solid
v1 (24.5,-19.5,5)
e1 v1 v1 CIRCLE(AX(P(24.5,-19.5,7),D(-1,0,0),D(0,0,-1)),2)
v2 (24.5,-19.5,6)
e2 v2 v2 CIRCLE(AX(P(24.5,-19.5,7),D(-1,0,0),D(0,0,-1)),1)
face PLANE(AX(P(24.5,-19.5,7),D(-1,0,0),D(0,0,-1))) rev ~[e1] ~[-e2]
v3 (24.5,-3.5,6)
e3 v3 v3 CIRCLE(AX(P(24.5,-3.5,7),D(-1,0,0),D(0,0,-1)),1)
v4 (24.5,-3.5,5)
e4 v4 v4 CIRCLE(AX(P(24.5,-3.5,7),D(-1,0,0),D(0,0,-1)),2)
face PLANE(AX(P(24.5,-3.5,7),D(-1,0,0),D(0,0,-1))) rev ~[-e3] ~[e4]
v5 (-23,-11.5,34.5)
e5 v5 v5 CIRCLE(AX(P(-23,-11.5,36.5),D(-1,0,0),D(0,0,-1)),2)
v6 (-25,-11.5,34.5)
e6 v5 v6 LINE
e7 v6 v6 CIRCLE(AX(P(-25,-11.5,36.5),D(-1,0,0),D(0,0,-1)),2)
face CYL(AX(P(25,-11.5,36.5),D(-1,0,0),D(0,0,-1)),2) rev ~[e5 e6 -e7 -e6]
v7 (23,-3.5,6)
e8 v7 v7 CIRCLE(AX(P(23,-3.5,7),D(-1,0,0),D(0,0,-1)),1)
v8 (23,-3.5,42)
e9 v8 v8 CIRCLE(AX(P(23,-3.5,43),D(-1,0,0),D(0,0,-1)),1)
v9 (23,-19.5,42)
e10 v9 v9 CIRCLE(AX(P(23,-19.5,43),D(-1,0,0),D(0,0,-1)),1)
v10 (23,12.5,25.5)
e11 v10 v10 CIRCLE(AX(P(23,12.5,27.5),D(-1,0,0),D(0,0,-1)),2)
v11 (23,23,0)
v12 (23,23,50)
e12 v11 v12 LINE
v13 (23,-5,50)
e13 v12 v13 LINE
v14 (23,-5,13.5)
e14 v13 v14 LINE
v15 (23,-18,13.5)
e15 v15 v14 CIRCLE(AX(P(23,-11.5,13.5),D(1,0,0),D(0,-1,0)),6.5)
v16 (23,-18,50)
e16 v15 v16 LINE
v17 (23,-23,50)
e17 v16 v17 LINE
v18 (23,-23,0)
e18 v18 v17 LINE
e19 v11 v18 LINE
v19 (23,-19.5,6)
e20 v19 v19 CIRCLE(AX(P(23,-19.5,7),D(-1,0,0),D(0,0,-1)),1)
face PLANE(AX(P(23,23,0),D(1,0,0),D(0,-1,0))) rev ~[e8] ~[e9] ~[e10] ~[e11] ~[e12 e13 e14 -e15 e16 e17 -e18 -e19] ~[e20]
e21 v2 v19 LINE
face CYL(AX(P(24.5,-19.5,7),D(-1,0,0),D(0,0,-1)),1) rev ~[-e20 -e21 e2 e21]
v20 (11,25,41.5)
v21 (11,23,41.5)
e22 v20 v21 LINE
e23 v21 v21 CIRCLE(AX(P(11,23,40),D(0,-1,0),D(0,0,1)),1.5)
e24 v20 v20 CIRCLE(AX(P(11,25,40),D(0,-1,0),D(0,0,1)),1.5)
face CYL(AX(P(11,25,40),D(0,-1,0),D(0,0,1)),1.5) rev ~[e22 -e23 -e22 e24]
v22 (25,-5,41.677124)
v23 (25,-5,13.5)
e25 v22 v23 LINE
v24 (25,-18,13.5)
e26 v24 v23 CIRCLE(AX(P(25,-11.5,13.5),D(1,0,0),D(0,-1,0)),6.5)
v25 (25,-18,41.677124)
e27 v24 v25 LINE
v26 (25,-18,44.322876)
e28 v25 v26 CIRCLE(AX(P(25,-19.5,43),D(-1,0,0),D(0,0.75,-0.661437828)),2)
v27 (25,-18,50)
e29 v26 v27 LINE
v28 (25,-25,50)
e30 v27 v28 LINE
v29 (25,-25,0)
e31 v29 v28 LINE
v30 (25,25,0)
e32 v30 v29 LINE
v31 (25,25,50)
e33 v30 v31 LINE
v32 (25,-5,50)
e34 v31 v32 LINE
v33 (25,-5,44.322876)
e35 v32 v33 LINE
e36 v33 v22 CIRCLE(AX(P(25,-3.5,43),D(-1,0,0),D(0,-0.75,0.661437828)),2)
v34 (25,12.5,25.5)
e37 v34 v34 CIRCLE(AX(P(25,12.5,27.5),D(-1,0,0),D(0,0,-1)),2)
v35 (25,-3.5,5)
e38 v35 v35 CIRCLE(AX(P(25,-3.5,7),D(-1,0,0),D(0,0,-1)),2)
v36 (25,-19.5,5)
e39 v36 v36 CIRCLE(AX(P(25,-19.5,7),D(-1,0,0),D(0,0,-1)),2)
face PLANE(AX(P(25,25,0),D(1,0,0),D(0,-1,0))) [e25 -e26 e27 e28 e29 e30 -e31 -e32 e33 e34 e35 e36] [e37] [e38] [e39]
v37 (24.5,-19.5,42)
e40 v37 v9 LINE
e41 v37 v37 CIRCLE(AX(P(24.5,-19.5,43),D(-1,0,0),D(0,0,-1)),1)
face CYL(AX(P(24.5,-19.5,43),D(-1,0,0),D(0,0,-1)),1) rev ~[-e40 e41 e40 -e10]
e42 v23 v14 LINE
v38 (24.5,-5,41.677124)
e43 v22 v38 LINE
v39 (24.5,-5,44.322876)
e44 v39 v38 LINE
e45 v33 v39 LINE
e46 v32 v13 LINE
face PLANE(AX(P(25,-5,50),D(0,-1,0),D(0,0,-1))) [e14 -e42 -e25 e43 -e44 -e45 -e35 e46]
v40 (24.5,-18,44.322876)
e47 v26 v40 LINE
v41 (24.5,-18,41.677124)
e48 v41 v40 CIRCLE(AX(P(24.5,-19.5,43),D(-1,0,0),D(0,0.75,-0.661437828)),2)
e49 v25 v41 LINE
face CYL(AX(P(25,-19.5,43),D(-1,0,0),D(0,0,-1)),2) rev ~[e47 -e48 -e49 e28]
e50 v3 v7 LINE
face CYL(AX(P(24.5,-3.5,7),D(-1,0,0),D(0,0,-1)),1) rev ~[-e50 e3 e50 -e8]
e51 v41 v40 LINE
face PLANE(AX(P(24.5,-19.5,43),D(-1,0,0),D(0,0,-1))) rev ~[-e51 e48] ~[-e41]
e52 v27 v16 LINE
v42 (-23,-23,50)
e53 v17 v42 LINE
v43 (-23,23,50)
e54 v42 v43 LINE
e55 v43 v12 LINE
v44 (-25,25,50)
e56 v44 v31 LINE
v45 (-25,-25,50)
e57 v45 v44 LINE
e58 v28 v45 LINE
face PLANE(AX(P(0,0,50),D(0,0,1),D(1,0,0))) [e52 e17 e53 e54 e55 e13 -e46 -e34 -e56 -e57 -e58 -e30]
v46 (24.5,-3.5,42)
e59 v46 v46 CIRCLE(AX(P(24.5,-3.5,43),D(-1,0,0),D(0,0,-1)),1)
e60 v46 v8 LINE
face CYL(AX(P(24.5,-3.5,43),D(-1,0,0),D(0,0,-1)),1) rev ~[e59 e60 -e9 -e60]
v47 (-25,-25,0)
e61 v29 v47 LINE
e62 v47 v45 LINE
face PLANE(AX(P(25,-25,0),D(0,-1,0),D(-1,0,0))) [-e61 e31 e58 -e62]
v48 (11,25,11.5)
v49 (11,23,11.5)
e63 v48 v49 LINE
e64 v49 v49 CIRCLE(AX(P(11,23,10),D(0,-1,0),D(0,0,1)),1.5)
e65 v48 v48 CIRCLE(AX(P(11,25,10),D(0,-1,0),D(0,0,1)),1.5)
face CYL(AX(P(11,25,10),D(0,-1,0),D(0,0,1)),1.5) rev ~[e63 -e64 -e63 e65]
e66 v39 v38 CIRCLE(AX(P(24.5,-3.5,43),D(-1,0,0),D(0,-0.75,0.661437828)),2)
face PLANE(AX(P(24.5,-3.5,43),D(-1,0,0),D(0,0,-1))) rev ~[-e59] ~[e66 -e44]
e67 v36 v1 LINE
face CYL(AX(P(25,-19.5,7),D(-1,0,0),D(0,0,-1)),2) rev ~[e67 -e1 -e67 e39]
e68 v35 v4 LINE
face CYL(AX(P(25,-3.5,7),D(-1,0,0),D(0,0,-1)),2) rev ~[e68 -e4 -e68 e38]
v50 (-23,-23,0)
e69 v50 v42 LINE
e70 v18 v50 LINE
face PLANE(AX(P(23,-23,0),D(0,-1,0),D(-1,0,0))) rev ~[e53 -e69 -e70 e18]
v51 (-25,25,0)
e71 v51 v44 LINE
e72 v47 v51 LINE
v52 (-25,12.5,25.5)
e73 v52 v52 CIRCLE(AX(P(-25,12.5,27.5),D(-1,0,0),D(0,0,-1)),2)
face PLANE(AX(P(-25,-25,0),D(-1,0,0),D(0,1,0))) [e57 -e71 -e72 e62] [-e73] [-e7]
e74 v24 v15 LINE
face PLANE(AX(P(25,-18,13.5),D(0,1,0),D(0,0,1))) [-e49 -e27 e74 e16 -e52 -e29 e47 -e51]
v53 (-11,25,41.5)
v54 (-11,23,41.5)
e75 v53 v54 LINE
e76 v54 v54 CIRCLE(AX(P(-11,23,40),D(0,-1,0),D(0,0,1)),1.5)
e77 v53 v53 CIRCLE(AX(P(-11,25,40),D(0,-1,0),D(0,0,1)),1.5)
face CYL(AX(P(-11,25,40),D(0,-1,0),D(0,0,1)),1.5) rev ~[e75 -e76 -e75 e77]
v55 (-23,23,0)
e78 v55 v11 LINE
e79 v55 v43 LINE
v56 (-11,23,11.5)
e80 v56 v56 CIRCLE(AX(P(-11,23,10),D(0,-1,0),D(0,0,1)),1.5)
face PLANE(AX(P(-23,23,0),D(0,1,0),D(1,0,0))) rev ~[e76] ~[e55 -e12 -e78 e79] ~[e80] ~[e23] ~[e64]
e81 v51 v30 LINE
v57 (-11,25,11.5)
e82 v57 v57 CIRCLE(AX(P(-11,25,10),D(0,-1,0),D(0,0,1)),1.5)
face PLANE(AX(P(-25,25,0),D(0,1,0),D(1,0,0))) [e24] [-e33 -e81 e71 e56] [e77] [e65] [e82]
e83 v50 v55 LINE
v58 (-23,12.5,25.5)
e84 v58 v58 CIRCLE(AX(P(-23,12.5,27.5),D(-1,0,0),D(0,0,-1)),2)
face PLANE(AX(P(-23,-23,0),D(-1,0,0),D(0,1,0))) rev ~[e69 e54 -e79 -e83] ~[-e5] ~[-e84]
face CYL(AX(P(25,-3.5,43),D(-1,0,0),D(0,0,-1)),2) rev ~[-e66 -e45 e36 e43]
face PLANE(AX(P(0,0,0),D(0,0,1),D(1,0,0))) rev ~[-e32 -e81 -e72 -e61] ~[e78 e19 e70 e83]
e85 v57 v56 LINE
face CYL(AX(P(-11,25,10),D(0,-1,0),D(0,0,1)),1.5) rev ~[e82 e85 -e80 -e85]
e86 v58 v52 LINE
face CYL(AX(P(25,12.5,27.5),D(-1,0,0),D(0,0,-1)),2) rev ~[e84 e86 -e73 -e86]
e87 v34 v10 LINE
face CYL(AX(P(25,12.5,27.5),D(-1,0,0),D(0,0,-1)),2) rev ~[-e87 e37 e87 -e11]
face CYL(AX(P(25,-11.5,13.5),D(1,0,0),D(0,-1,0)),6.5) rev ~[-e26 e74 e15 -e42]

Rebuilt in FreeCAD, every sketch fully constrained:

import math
import FreeCAD as App
import Part
import Sketcher
from FreeCAD import Vector
Q = App.Units.Quantity


def add_polygon(sketch, points):
    """Adds a closed chain of lines whose ends are joined by coincident constraints."""
    first, n = sketch.GeometryCount, len(points)
    for a, b in zip(points, points[1:] + points[:1]):
        sketch.addGeometry(Part.LineSegment(App.Vector(*a, 0), App.Vector(*b, 0)), False)
    for i in range(n):
        sketch.addConstraint(Sketcher.Constraint("Coincident", first + i, 2, first + (i + 1) % n, 1))

doc = App.newDocument("Part")
params = doc.addObject("Spreadsheet::Sheet", "Params")
for row, (alias, value) in enumerate([
    ("sketch1_width", "50 mm"),
    ("sketch1_width2", "46 mm"),
    ("pad1_length", "50 mm"),
    ("sketch2_radius", "6.5 mm"),
    ("sketch2_height", "36.5 mm"),
    ("pocket1_length", "30.5 mm"),
    ("sketch3_diameter", "2 mm"),
    ("hole_diameter", "2 mm"),
    ("hole_depth", "2 mm"),
    ("hole_cbore_diameter", "4 mm"),
    ("hole_cbore_depth", "0.5 mm"),
    ("sketch4_diameter", "4 mm"),
    ("hole2_diameter", "4 mm"),
    ("sketch5_diameter", "3 mm"),
    ("hole3_diameter", "3 mm"),
    ("hole3_depth", "2 mm"),
], start=1):
    params.set(f"A{row}", alias)
    params.set(f"B{row}", "=" + value)
    params.setAlias(f"B{row}", alias)

body = doc.addObject("PartDesign::Body", "Body")

# Sketch on XY plane
sketch1 = body.newObject("Sketcher::SketchObject", "Sketch")
sketch1.AttachmentSupport = (doc.getObject("XY_Plane"), [""])
sketch1.MapMode = "FlatFace"
add_polygon(sketch1, [(25, 25), (-25, 25), (-25, -25), (25, -25)])  # lines 0-3
add_polygon(sketch1, [(-23, -23), (-23, 23), (23, 23), (23, -23)])  # lines 4-7
sketch1.addConstraint([
    Sketcher.Constraint("Horizontal", 0),
    Sketcher.Constraint("Vertical", 1),
    Sketcher.Constraint("Horizontal", 2),
    Sketcher.Constraint("Vertical", 3),
    Sketcher.Constraint("Vertical", 4),
    Sketcher.Constraint("Horizontal", 5),
    Sketcher.Constraint("Vertical", 6),
    Sketcher.Constraint("Horizontal", 7),
    Sketcher.Constraint("Symmetric", 0, 2, 2, 2, -1, 1),
    Sketcher.Constraint("Symmetric", 4, 2, 6, 2, -1, 1),
    Sketcher.Constraint("Equal", 2, 1),
    Sketcher.Constraint("Equal", 7, 4),
    Sketcher.Constraint("DistanceX", 0, 2, 0, 1, Q("50 mm")),
    Sketcher.Constraint("DistanceX", 5, 1, 5, 2, Q("46 mm")),
])
sketch1.setExpression("Constraints[20]", "Params.sketch1_width")
sketch1.setExpression("Constraints[21]", "Params.sketch1_width2")
pad1 = body.newObject("PartDesign::Pad", "Pad")
pad1.Profile = sketch1
pad1.setExpression("Length", "Params.pad1_length")

# Sketch on YZ plane
sketch2 = body.newObject("Sketcher::SketchObject", "Sketch001")
sketch2.AttachmentSupport = (doc.getObject("YZ_Plane"), [""])
sketch2.MapMode = "FlatFace"
sketch2.AttachmentOffset = App.Placement(Vector(0, 0, 25), App.Rotation())
sketch2.addGeometry([
    Part.LineSegment(Vector(-5, 14, 0), Vector(-5, 50, 0)),
    Part.LineSegment(Vector(-5, 50, 0), Vector(-18, 50, 0)),
    Part.LineSegment(Vector(-18, 50, 0), Vector(-18, 14, 0)),
    Part.ArcOfCircle(Part.Circle(Vector(-12, 14, 0), Vector(0, 0, 1), 6), math.radians(180), math.radians(360)),
], False)
sketch2.addConstraint([
    Sketcher.Constraint("Coincident", 0, 2, 1, 1),
    Sketcher.Constraint("Coincident", 1, 2, 2, 1),
    Sketcher.Constraint("Tangent", 2, 2, 3, 1),
    Sketcher.Constraint("Tangent", 3, 2, 0, 1),
    Sketcher.Constraint("Vertical", 0),
    Sketcher.Constraint("Horizontal", 1),
    Sketcher.Constraint("Vertical", 2),
    Sketcher.Constraint("Radius", 3, Q("6.5 mm")),
    Sketcher.Constraint("DistanceY", 0, 1, 0, 2, Q("36.5 mm")),
    Sketcher.Constraint("DistanceX", 0, 2, -1, 1, Q("5 mm")),
    Sketcher.Constraint("DistanceY", -1, 1, 0, 2, Q("50 mm")),
])
sketch2.setExpression("Constraints[7]", "Params.sketch2_radius")
sketch2.setExpression("Constraints[8]", "Params.sketch2_height")
pocket1 = body.newObject("PartDesign::Pocket", "Pocket")
pocket1.Profile = sketch2
pocket1.setExpression("Length", "Params.pocket1_length")

# Sketch on YZ plane
sketch3 = body.newObject("Sketcher::SketchObject", "Sketch002")
sketch3.AttachmentSupport = (doc.getObject("YZ_Plane"), [""])
sketch3.MapMode = "FlatFace"
sketch3.AttachmentOffset = App.Placement(Vector(0, 0, 25), App.Rotation())
sketch3.addGeometry([
    Part.Circle(Vector(-19.5, 43, 0), Vector(0, 0, 1), 1),
    Part.Circle(Vector(-3.5, 7, 0), Vector(0, 0, 1), 1),
    Part.Circle(Vector(-19.5, 7, 0), Vector(0, 0, 1), 1),
    Part.Circle(Vector(-3.5, 43, 0), Vector(0, 0, 1), 1),
], False)
sketch3.addConstraint([
    Sketcher.Constraint("Equal", 0, 1),
    Sketcher.Constraint("Equal", 1, 2),
    Sketcher.Constraint("Equal", 2, 3),
    Sketcher.Constraint("Horizontal", 1, 3, 2, 3),
    Sketcher.Constraint("Horizontal", 0, 3, 3, 3),
    Sketcher.Constraint("Vertical", 0, 3, 2, 3),
    Sketcher.Constraint("Vertical", 1, 3, 3, 3),
    Sketcher.Constraint("Diameter", 0, Q("2 mm")),
    Sketcher.Constraint("DistanceY", -1, 1, 0, 3, Q("43 mm")),
    Sketcher.Constraint("DistanceY", -1, 1, 1, 3, Q("7 mm")),
    Sketcher.Constraint("DistanceX", 0, 3, 1, 3, Q("16 mm")),
    Sketcher.Constraint("DistanceX", 0, 3, -1, 1, Q("19.5 mm")),
])
sketch3.setExpression("Constraints[7]", "Params.sketch3_diameter")
doc.recompute()
hole = body.newObject("PartDesign::Hole", "Hole")
hole.Profile = sketch3
hole.ThreadType = "None"
hole.setExpression("Diameter", "Params.hole_diameter")
hole.DepthType = "Dimension"
hole.setExpression("Depth", "Params.hole_depth")
hole.DrillPoint = "Angled"
hole.DrillPointAngle = 118
hole.HoleCutType = "Counterbore"
hole.setExpression("HoleCutDiameter", "Params.hole_cbore_diameter")
hole.setExpression("HoleCutDepth", "Params.hole_cbore_depth")

# Sketch on YZ plane
sketch4 = body.newObject("Sketcher::SketchObject", "Sketch003")
sketch4.AttachmentSupport = (doc.getObject("YZ_Plane"), [""])
sketch4.MapMode = "FlatFace"
sketch4.AttachmentOffset = App.Placement(Vector(0, 0, 25), App.Rotation())
sketch4.addGeometry([
    Part.Circle(Vector(-11.5, 36.5, 0), Vector(0, 0, 1), 2),
    Part.Circle(Vector(12.5, 27.5, 0), Vector(0, 0, 1), 2),
], False)
sketch4.addConstraint([
    Sketcher.Constraint("Equal", 0, 1),
    Sketcher.Constraint("Diameter", 0, Q("4 mm")),
    Sketcher.Constraint("DistanceX", 0, 3, 1, 3, Q("24 mm")),
    Sketcher.Constraint("DistanceY", 1, 3, 0, 3, Q("9 mm")),
    Sketcher.Constraint("DistanceX", 0, 3, -1, 1, Q("11.5 mm")),
    Sketcher.Constraint("DistanceY", -1, 1, 0, 3, Q("36.5 mm")),
])
sketch4.setExpression("Constraints[1]", "Params.sketch4_diameter")
doc.recompute()
hole2 = body.newObject("PartDesign::Hole", "Hole001")
hole2.Profile = sketch4
hole2.ThreadType = "None"
hole2.setExpression("Diameter", "Params.hole2_diameter")
hole2.DepthType = "ThroughAll"

# Sketch on XZ plane
sketch5 = body.newObject("Sketcher::SketchObject", "Sketch004")
sketch5.AttachmentSupport = (doc.getObject("XZ_Plane"), [""])
sketch5.MapMode = "FlatFace"
sketch5.AttachmentOffset = App.Placement(Vector(0, 0, -25), App.Rotation())
sketch5.addGeometry([
    Part.Circle(Vector(11, 40, 0), Vector(0, 0, 1), 1.5),
    Part.Circle(Vector(-11, 40, 0), Vector(0, 0, 1), 1.5),
    Part.Circle(Vector(11, 10, 0), Vector(0, 0, 1), 1.5),
    Part.Circle(Vector(-11, 10, 0), Vector(0, 0, 1), 1.5),
], False)
sketch5.addConstraint([
    Sketcher.Constraint("Equal", 0, 1),
    Sketcher.Constraint("Equal", 1, 2),
    Sketcher.Constraint("Equal", 2, 3),
    Sketcher.Constraint("Symmetric", 0, 3, 1, 3, -2),
    Sketcher.Constraint("Symmetric", 2, 3, 3, 3, -2),
    Sketcher.Constraint("Vertical", 0, 3, 2, 3),
    Sketcher.Constraint("Diameter", 0, Q("3 mm")),
    Sketcher.Constraint("DistanceX", -1, 1, 0, 3, Q("11 mm")),
    Sketcher.Constraint("DistanceY", -1, 1, 0, 3, Q("40 mm")),
    Sketcher.Constraint("DistanceY", -1, 1, 2, 3, Q("10 mm")),
])
sketch5.setExpression("Constraints[6]", "Params.sketch5_diameter")
doc.recompute()
hole3 = body.newObject("PartDesign::Hole", "Hole002")
hole3.Profile = sketch5
hole3.ThreadType = "None"
hole3.setExpression("Diameter", "Params.hole3_diameter")
hole3.DepthType = "Dimension"
hole3.setExpression("Depth", "Params.hole3_depth")
hole3.DrillPoint = "Angled"
hole3.DrillPointAngle = 118
hole3.Reversed = True

doc.recompute()
